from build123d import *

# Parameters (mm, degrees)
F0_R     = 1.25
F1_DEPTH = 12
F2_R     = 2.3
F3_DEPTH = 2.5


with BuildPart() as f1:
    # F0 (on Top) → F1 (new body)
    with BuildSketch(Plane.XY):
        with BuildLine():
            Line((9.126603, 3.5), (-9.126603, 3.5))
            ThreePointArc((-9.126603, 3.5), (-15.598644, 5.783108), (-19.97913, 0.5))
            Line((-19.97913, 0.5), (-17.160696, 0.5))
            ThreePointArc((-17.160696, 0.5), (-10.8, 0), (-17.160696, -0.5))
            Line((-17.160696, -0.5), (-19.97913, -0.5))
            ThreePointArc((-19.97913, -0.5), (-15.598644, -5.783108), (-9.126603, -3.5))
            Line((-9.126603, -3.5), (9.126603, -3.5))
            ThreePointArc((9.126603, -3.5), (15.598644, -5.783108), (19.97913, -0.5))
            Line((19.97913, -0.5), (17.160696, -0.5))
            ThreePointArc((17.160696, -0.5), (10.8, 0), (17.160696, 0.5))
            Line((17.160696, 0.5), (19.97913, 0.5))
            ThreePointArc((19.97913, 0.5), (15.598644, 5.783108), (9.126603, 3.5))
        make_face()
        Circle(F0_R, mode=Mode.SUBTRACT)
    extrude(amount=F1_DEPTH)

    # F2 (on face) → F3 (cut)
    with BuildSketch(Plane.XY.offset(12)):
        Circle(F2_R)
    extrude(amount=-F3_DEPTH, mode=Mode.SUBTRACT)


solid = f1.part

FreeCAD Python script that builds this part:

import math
import FreeCAD as App
import Part
import Sketcher

V = App.Vector

doc = App.newDocument("Part")
body = doc.addObject("PartDesign::Body", "Body")

sketch1 = body.newObject("Sketcher::SketchObject", "Sketch")
sketch1.AttachmentSupport = (doc.getObject("XY_Plane"), [""])
sketch1.MapMode = "FlatFace"
sketch1.addGeometry(Part.LineSegment(V(9.1, 3.5, 0), V(-9.1, 3.5, 0)), False)
sketch1.addGeometry(Part.ArcOfCircle(Part.Circle(V(-14, 0, 0), V(0, 0, 1), 6), math.radians(36), math.radians(175)), False)
sketch1.addGeometry(Part.LineSegment(V(-20, 0.5, 0), V(-17.2, 0.5, 0)), False)
sketch1.addGeometry(Part.ArcOfCircle(Part.Circle(V(-14, 0, 0), V(0, 0, 1), 3.2), math.radians(-171), math.radians(171)), False)
sketch1.addGeometry(Part.LineSegment(V(-17.2, -0.5, 0), V(-20, -0.5, 0)), False)
sketch1.addGeometry(Part.ArcOfCircle(Part.Circle(V(-14, 0, 0), V(0, 0, 1), 6), math.radians(-175), math.radians(-36)), False)
sketch1.addGeometry(Part.LineSegment(V(-9.1, -3.5, 0), V(9.1, -3.5, 0)), False)
sketch1.addGeometry(Part.ArcOfCircle(Part.Circle(V(14, 0, 0), V(0, 0, 1), 6), math.radians(-144), math.radians(-5)), False)
sketch1.addGeometry(Part.LineSegment(V(20, -0.5, 0), V(17.2, -0.5, 0)), False)
sketch1.addGeometry(Part.ArcOfCircle(Part.Circle(V(14, 0, 0), V(0, 0, 1), 3.2), math.radians(9), math.radians(351)), False)
sketch1.addGeometry(Part.LineSegment(V(17.2, 0.5, 0), V(20, 0.5, 0)), False)
sketch1.addGeometry(Part.ArcOfCircle(Part.Circle(V(14, 0, 0), V(0, 0, 1), 6), math.radians(5), math.radians(144)), False)
sketch1.addGeometry(Part.Circle(V(0, 0, 0), V(0, 0, 1), 1.2), False)
sketch1.addConstraint(Sketcher.Constraint("Coincident", 0, 2, 1, 1))
sketch1.addConstraint(Sketcher.Constraint("Coincident", 1, 2, 2, 1))
sketch1.addConstraint(Sketcher.Constraint("Coincident", 2, 2, 3, 2))
sketch1.addConstraint(Sketcher.Constraint("Coincident", 3, 1, 4, 1))
sketch1.addConstraint(Sketcher.Constraint("Coincident", 4, 2, 5, 1))
sketch1.addConstraint(Sketcher.Constraint("Coincident", 5, 2, 6, 1))
sketch1.addConstraint(Sketcher.Constraint("Coincident", 6, 2, 7, 1))
sketch1.addConstraint(Sketcher.Constraint("Coincident", 7, 2, 8, 1))
sketch1.addConstraint(Sketcher.Constraint("Coincident", 8, 2, 9, 2))
sketch1.addConstraint(Sketcher.Constraint("Coincident", 9, 1, 10, 1))
sketch1.addConstraint(Sketcher.Constraint("Coincident", 10, 2, 11, 1))
sketch1.addConstraint(Sketcher.Constraint("Coincident", 11, 2, 0, 1))
sketch1.addConstraint(Sketcher.Constraint("Horizontal", 0))
sketch1.addConstraint(Sketcher.Constraint("Horizontal", 2))
sketch1.addConstraint(Sketcher.Constraint("Horizontal", 4))
sketch1.addConstraint(Sketcher.Constraint("Horizontal", 6))
sketch1.addConstraint(Sketcher.Constraint("Horizontal", 8))
sketch1.addConstraint(Sketcher.Constraint("Horizontal", 10))
sketch1.addConstraint(Sketcher.Constraint("Coincident", 12, 3, -1, 1))
sketch1.addConstraint(Sketcher.Constraint("Coincident", 3, 3, 1, 3))
sketch1.addConstraint(Sketcher.Constraint("Coincident", 5, 3, 1, 3))
sketch1.addConstraint(Sketcher.Constraint("Coincident", 9, 3, 7, 3))
sketch1.addConstraint(Sketcher.Constraint("Coincident", 11, 3, 7, 3))
sketch1.addConstraint(Sketcher.Constraint("Equal", 1, 5))
sketch1.addConstraint(Sketcher.Constraint("Equal", 5, 7))
sketch1.addConstraint(Sketcher.Constraint("Equal", 3, 9))
sketch1.addConstraint(Sketcher.Constraint("Equal", 7, 11))
sketch1.addConstraint(Sketcher.Constraint("Symmetric", 1, 3, 7, 3, -1, 1))
sketch1.addConstraint(Sketcher.Constraint("Symmetric", 4, 2, 7, 2, -2))
sketch1.addConstraint(Sketcher.Constraint("Horizontal", 2, 2, 9, 1))
sketch1.addConstraint(Sketcher.Constraint("Vertical", 2, 2, 3, 1))
sketch1.addConstraint(Sketcher.Constraint("Vertical", 0, 2, 5, 2))
sketch1.addConstraint(Sketcher.Constraint("Radius", 1, 6.0))
sketch1.addConstraint(Sketcher.Constraint("Diameter", 12, 2.5))
sketch1.addConstraint(Sketcher.Constraint("Radius", 3, 3.2))
sketch1.addConstraint(Sketcher.Constraint("DistanceX", 1, 3, -1, 1, 14.0))
sketch1.addConstraint(Sketcher.Constraint("DistanceY", 1, 2, 0, 2, 3.0))
sketch1.addConstraint(Sketcher.Constraint("DistanceY", 3, 1, 2, 2, 1.0))
pad1 = body.newObject("PartDesign::Pad", "Pad")
pad1.Profile = sketch1
pad1.Length = 12

sketch2 = body.newObject("Sketcher::SketchObject", "Sketch001")
sketch2.AttachmentSupport = (doc.getObject("XY_Plane"), [""])
sketch2.MapMode = "FlatFace"
sketch2.AttachmentOffset = App.Placement(V(0, 0, 12), App.Rotation())
sketch2.addGeometry(Part.Circle(V(0, 0, 0), V(0, 0, 1), 2.3), False)
sketch2.addConstraint(Sketcher.Constraint("Coincident", 0, 3, -1, 1))
sketch2.addConstraint(Sketcher.Constraint("Diameter", 0, 4.6))
pocket1 = body.newObject("PartDesign::Pocket", "Pocket")
pocket1.Profile = sketch2
pocket1.Length = 2.5

doc.recompute()
